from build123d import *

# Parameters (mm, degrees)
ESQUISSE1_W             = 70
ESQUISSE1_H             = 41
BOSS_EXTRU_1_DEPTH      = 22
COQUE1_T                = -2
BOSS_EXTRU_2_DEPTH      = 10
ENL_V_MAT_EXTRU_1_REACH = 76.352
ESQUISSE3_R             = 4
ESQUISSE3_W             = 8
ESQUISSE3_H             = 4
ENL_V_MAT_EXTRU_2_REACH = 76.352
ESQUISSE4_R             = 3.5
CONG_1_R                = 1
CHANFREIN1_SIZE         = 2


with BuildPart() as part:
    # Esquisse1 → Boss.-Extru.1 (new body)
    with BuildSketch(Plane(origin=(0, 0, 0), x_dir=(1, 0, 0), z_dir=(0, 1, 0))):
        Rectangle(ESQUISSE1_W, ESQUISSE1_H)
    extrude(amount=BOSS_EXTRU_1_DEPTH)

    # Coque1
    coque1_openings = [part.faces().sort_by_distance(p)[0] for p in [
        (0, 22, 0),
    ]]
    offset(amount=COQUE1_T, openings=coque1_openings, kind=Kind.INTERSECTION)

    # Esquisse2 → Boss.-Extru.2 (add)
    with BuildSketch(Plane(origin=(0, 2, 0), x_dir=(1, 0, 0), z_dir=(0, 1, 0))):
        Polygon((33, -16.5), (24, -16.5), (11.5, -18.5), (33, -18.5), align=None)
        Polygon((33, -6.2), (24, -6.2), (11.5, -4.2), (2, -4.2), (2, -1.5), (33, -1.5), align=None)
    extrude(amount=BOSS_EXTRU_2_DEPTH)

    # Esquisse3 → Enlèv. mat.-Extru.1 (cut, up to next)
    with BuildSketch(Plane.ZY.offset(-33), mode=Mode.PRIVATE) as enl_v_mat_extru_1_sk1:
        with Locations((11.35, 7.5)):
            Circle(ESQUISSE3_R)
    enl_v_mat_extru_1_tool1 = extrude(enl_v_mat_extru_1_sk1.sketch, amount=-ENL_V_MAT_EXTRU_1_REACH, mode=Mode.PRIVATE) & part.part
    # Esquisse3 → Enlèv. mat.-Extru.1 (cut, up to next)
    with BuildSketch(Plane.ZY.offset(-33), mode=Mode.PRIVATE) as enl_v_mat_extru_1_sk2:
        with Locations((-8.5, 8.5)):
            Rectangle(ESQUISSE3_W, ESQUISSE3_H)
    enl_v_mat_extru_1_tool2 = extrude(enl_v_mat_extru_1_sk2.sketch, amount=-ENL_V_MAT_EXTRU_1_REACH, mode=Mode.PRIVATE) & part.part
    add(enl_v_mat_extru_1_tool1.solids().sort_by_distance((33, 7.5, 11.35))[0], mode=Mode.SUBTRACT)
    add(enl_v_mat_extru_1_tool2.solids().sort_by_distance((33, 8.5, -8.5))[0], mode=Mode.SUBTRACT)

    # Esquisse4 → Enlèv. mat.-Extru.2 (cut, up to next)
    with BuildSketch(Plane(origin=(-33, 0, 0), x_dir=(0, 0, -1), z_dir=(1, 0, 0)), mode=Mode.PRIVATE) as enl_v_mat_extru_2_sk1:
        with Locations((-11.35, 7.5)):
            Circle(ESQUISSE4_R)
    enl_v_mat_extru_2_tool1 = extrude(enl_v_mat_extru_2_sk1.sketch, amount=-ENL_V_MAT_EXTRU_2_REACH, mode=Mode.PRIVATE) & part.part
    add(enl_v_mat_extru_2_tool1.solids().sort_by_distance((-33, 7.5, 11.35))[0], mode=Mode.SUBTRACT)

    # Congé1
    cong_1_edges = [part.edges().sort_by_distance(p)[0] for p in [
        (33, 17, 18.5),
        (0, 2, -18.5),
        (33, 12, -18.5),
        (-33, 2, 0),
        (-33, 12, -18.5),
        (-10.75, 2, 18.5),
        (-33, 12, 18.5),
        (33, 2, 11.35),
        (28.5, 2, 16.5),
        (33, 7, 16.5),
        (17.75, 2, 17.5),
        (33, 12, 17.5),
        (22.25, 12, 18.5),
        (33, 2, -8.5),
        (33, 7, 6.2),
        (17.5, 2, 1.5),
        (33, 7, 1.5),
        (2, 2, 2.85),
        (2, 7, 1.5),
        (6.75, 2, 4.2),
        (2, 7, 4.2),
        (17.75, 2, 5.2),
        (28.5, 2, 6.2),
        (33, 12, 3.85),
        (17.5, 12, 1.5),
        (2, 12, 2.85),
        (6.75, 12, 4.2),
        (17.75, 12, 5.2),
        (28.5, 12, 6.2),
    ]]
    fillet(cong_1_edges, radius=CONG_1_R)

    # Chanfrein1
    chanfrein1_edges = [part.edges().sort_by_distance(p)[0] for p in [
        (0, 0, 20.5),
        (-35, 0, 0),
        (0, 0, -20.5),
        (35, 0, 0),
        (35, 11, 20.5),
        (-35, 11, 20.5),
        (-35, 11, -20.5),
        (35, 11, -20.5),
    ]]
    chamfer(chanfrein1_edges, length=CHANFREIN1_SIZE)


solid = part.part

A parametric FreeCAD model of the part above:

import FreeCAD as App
import Part
import Sketcher
from FreeCAD import Vector


def edges_at(feature, points):
    """Names of the edges that pass closest to the given points."""
    edges = feature.Shape.Edges
    near = lambda p: min(range(len(edges)), key=lambda i: edges[i].distToShape(Part.Vertex(*p))[0])
    return sorted({f"Edge{near(p) + 1}" for p in points})


def faces_at(feature, points):
    """Names of the faces that lie closest to the given points."""
    faces = feature.Shape.Faces
    near = lambda p: min(range(len(faces)), key=lambda i: faces[i].distToShape(Part.Vertex(*p))[0])
    return sorted({f"Face{near(p) + 1}" for p in points})


def add_polygon(sketch, points):
    """Adds a closed chain of lines whose ends are joined by coincident constraints."""
    first, n = sketch.GeometryCount, len(points)
    for a, b in zip(points, points[1:] + points[:1]):
        sketch.addGeometry(Part.LineSegment(App.Vector(*a, 0), App.Vector(*b, 0)), False)
    for i in range(n):
        sketch.addConstraint(Sketcher.Constraint("Coincident", first + i, 2, first + (i + 1) % n, 1))

doc = App.newDocument("Part")
params = doc.addObject("Spreadsheet::Sheet", "Params")
for row, (alias, value) in enumerate([
    ("sketch1_width", "70 mm"),
    ("sketch1_height", "41 mm"),
    ("pad1_length", "22 mm"),
    ("thickness_wall", "2 mm"),
    ("sketch2_width", "9 mm"),
    ("sketch2_width2", "31 mm"),
    ("sketch2_height", "2 mm"),
    ("sketch2_width3", "21.5 mm"),
    ("sketch2_height2", "4.7 mm"),
    ("pad2_length", "10 mm"),
    ("sketch3_diameter", "8 mm"),
    ("sketch4_width", "4 mm"),
    ("sketch4_height", "8 mm"),
    ("sketch5_diameter", "7 mm"),
    ("fillet_radius", "1 mm"),
    ("chamfer_size", "2 mm"),
], start=1):
    params.set(f"A{row}", alias)
    params.set(f"B{row}", "=" + value)
    params.setAlias(f"B{row}", alias)

body = doc.addObject("PartDesign::Body", "Body")

# Sketch on XZ plane
sketch1 = body.newObject("Sketcher::SketchObject", "Sketch")
sketch1.AttachmentSupport = (doc.getObject("XZ_Plane"), [""])
sketch1.MapMode = "FlatFace"
add_polygon(sketch1, [(-35, -20), (-35, 20), (35, 20), (35, -20)])  # lines 0-3
sketch1.addConstraint(Sketcher.Constraint("Vertical", 0))
sketch1.addConstraint(Sketcher.Constraint("Horizontal", 1))
sketch1.addConstraint(Sketcher.Constraint("Vertical", 2))
sketch1.addConstraint(Sketcher.Constraint("Horizontal", 3))
sketch1.addConstraint(Sketcher.Constraint("Symmetric", 0, 2, 2, 2, -1, 1))
sketch1.addConstraint(Sketcher.Constraint("DistanceX", 1, 1, 1, 2, 70.0))
sketch1.addConstraint(Sketcher.Constraint("DistanceY", 0, 1, 0, 2, 41.0))
sketch1.setExpression("Constraints[9]", "Params.sketch1_width")
sketch1.setExpression("Constraints[10]", "Params.sketch1_height")
pad1 = body.newObject("PartDesign::Pad", "Pad")
pad1.Profile = sketch1
pad1.setExpression("Length", "Params.pad1_length")
pad1.Reversed = True
doc.recompute()

thickness = body.newObject("PartDesign::Thickness", "Thickness")
thickness.Base = (pad1, faces_at(pad1, [(0, 22, 0)]))
thickness.setExpression("Value", "Params.thickness_wall")
thickness.Reversed = True
thickness.Join = "Intersection"

# Sketch on XZ plane
sketch2 = body.newObject("Sketcher::SketchObject", "Sketch001")
sketch2.AttachmentSupport = (doc.getObject("XZ_Plane"), [""])
sketch2.MapMode = "FlatFace"
sketch2.AttachmentOffset = App.Placement(Vector(0, 0, -2), App.Rotation())
add_polygon(sketch2, [(33, 16.5), (24, 16.5), (11.5, 18.5), (33, 18.5)])  # lines 0-3
add_polygon(sketch2, [(24, 6.2), (33, 6.2), (33, 1.5), (2, 1.5), (2, 4.2), (11.5, 4.2)])  # lines 4-9
sketch2.addConstraint(Sketcher.Constraint("Horizontal", 0))
sketch2.addConstraint(Sketcher.Constraint("Horizontal", 2))
sketch2.addConstraint(Sketcher.Constraint("Vertical", 3))
sketch2.addConstraint(Sketcher.Constraint("Horizontal", 4))
sketch2.addConstraint(Sketcher.Constraint("Vertical", 5))
sketch2.addConstraint(Sketcher.Constraint("Horizontal", 6))
sketch2.addConstraint(Sketcher.Constraint("Vertical", 7))
sketch2.addConstraint(Sketcher.Constraint("Horizontal", 8))
sketch2.addConstraint(Sketcher.Constraint("Vertical", 3, 2, 4, 2))
sketch2.addConstraint(Sketcher.Constraint("Vertical", 1, 2, 8, 2))
sketch2.addConstraint(Sketcher.Constraint("Vertical", 0, 2, 9, 2))
sketch2.addConstraint(Sketcher.Constraint("Equal", 1, 9))
sketch2.addConstraint(Sketcher.Constraint("DistanceX", 0, 2, 0, 1, 9.0))
sketch2.addConstraint(Sketcher.Constraint("DistanceX", 6, 2, 6, 1, 31.0))
sketch2.addConstraint(Sketcher.Constraint("DistanceY", 3, 2, 3, 1, 2.0))
sketch2.addConstraint(Sketcher.Constraint("DistanceX", 2, 1, 2, 2, 21.5))
sketch2.addConstraint(Sketcher.Constraint("DistanceY", 5, 2, 5, 1, 4.7))
sketch2.addConstraint(Sketcher.Constraint("DistanceX", -1, 1, 0, 2, 24.0))
sketch2.addConstraint(Sketcher.Constraint("DistanceY", 5, 2, 3, 2, 15.0))
sketch2.addConstraint(Sketcher.Constraint("DistanceY", -1, 1, 0, 2, 16.5))
sketch2.setExpression("Constraints[22]", "Params.sketch2_width")
sketch2.setExpression("Constraints[23]", "Params.sketch2_width2")
sketch2.setExpression("Constraints[24]", "Params.sketch2_height")
sketch2.setExpression("Constraints[25]", "Params.sketch2_width3")
sketch2.setExpression("Constraints[26]", "Params.sketch2_height2")
pad2 = body.newObject("PartDesign::Pad", "Pad001")
pad2.Profile = sketch2
pad2.setExpression("Length", "Params.pad2_length")
pad2.Reversed = True

# Sketch on YZ plane
sketch3 = body.newObject("Sketcher::SketchObject", "Sketch002")
sketch3.AttachmentSupport = (doc.getObject("YZ_Plane"), [""])
sketch3.MapMode = "FlatFace"
sketch3.AttachmentOffset = App.Placement(Vector(0, 0, 33), App.Rotation())
sketch3.addGeometry(Part.Circle(Vector(7.5, 11.3, 0), Vector(0, 0, 1), 4), False)
sketch3.addConstraint(Sketcher.Constraint("Diameter", 0, 8.0))
sketch3.addConstraint(Sketcher.Constraint("DistanceX", -1, 1, 0, 3, 7.5))
sketch3.addConstraint(Sketcher.Constraint("DistanceY", -1, 1, 0, 3, 11.35))
sketch3.setExpression("Constraints[0]", "Params.sketch3_diameter")
pocket1 = body.newObject("PartDesign::Pocket", "Pocket")
pocket1.Profile = sketch3
pocket1.Type = "UpToFirst"
pocket1.Reversed = True

# Sketch on YZ plane
sketch4 = body.newObject("Sketcher::SketchObject", "Sketch003")
sketch4.AttachmentSupport = (doc.getObject("YZ_Plane"), [""])
sketch4.MapMode = "FlatFace"
sketch4.AttachmentOffset = App.Placement(Vector(0, 0, 33), App.Rotation())
add_polygon(sketch4, [(10.5, -12.5), (6.5, -12.5), (6.5, -4.5), (10.5, -4.5)])  # lines 0-3
sketch4.addConstraint(Sketcher.Constraint("Horizontal", 0))
sketch4.addConstraint(Sketcher.Constraint("Vertical", 1))
sketch4.addConstraint(Sketcher.Constraint("Horizontal", 2))
sketch4.addConstraint(Sketcher.Constraint("Vertical", 3))
sketch4.addConstraint(Sketcher.Constraint("DistanceX", 0, 2, 0, 1, 4.0))
sketch4.addConstraint(Sketcher.Constraint("DistanceY", 1, 1, 1, 2, 8.0))
sketch4.addConstraint(Sketcher.Constraint("DistanceX", -1, 1, 0, 2, 6.5))
sketch4.addConstraint(Sketcher.Constraint("DistanceY", 0, 2, -1, 1, 12.5))
sketch4.setExpression("Constraints[8]", "Params.sketch4_width")
sketch4.setExpression("Constraints[9]", "Params.sketch4_height")
pocket2 = body.newObject("PartDesign::Pocket", "Pocket001")
pocket2.Profile = sketch4
pocket2.Type = "UpToFirst"
pocket2.Reversed = True

# Sketch on YZ plane
sketch5 = body.newObject("Sketcher::SketchObject", "Sketch004")
sketch5.AttachmentSupport = (doc.getObject("YZ_Plane"), [""])
sketch5.MapMode = "FlatFace"
sketch5.AttachmentOffset = App.Placement(Vector(0, 0, -33), App.Rotation())
sketch5.addGeometry(Part.Circle(Vector(7.5, 11.3, 0), Vector(0, 0, 1), 3.5), False)
sketch5.addConstraint(Sketcher.Constraint("Diameter", 0, 7.0))
sketch5.addConstraint(Sketcher.Constraint("DistanceX", -1, 1, 0, 3, 7.5))
sketch5.addConstraint(Sketcher.Constraint("DistanceY", -1, 1, 0, 3, 11.35))
sketch5.setExpression("Constraints[0]", "Params.sketch5_diameter")
pocket3 = body.newObject("PartDesign::Pocket", "Pocket002")
pocket3.Profile = sketch5
pocket3.Type = "UpToFirst"
doc.recompute()

fillet = body.newObject("PartDesign::Fillet", "Fillet")
fillet.Base = (pocket3, edges_at(pocket3, [
    (33, 17, 18.5),
    (0, 2, -18.5),
    (33, 12, -18.5),
    (-33, 2, 0),
    (-33, 12, -18.5),
    (-10.75, 2, 18.5),
    (-33, 12, 18.5),
    (33, 2, 11.35),
    (28.5, 2, 16.5),
    (33, 7, 16.5),
    (17.75, 2, 17.5),
    (33, 12, 17.5),
    (22.25, 12, 18.5),
    (33, 2, -8.5),
    (33, 7, 6.2),
    (17.5, 2, 1.5),
    (33, 7, 1.5),
    (2, 2, 2.85),
    (2, 7, 1.5),
    (6.75, 2, 4.2),
    (2, 7, 4.2),
    (17.75, 2, 5.2),
    (28.5, 2, 6.2),
    (33, 12, 3.85),
    (17.5, 12, 1.5),
    (2, 12, 2.85),
    (6.75, 12, 4.2),
    (17.75, 12, 5.2),
    (28.5, 12, 6.2),
]))
fillet.setExpression("Radius", "Params.fillet_radius")
doc.recompute()

chamfer = body.newObject("PartDesign::Chamfer", "Chamfer")
chamfer.Base = (fillet, edges_at(fillet, [
    (0, 0, 20.5),
    (-35, 0, 0),
    (0, 0, -20.5),
    (35, 0, 0),
    (35, 11, 20.5),
    (-35, 11, 20.5),
    (-35, 11, -20.5),
    (35, 11, -20.5),
]))
chamfer.setExpression("Size", "Params.chamfer_size")

doc.recompute()
